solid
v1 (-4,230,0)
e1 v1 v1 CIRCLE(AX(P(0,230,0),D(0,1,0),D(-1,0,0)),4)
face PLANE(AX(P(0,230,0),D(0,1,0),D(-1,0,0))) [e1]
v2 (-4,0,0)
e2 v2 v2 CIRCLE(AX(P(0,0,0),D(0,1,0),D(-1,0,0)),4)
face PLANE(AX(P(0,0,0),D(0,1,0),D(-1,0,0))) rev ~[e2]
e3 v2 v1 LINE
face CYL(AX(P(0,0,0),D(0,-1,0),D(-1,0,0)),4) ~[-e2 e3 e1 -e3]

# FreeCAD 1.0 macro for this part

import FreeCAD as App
import Part
import Sketcher
Q = App.Units.Quantity

doc = App.newDocument("Part")
body = doc.addObject("PartDesign::Body", "Body")

sketch1 = body.newObject("Sketcher::SketchObject", "Sketch")
sketch1.AttachmentSupport = (doc.getObject("XZ_Plane"), [""])
sketch1.MapMode = "FlatFace"
sketch1.addGeometry(Part.Circle(App.Vector(0, 0, 0), App.Vector(0, 0, 1), 4), False)
sketch1.addConstraint([
    Sketcher.Constraint("Coincident", 0, 3, -1, 1),
    Sketcher.Constraint("Diameter", 0, Q("8 mm")),
])
pad1 = body.newObject("PartDesign::Pad", "Pad")
pad1.Profile = sketch1
pad1.Length = 230
pad1.Reversed = True

doc.recompute()
